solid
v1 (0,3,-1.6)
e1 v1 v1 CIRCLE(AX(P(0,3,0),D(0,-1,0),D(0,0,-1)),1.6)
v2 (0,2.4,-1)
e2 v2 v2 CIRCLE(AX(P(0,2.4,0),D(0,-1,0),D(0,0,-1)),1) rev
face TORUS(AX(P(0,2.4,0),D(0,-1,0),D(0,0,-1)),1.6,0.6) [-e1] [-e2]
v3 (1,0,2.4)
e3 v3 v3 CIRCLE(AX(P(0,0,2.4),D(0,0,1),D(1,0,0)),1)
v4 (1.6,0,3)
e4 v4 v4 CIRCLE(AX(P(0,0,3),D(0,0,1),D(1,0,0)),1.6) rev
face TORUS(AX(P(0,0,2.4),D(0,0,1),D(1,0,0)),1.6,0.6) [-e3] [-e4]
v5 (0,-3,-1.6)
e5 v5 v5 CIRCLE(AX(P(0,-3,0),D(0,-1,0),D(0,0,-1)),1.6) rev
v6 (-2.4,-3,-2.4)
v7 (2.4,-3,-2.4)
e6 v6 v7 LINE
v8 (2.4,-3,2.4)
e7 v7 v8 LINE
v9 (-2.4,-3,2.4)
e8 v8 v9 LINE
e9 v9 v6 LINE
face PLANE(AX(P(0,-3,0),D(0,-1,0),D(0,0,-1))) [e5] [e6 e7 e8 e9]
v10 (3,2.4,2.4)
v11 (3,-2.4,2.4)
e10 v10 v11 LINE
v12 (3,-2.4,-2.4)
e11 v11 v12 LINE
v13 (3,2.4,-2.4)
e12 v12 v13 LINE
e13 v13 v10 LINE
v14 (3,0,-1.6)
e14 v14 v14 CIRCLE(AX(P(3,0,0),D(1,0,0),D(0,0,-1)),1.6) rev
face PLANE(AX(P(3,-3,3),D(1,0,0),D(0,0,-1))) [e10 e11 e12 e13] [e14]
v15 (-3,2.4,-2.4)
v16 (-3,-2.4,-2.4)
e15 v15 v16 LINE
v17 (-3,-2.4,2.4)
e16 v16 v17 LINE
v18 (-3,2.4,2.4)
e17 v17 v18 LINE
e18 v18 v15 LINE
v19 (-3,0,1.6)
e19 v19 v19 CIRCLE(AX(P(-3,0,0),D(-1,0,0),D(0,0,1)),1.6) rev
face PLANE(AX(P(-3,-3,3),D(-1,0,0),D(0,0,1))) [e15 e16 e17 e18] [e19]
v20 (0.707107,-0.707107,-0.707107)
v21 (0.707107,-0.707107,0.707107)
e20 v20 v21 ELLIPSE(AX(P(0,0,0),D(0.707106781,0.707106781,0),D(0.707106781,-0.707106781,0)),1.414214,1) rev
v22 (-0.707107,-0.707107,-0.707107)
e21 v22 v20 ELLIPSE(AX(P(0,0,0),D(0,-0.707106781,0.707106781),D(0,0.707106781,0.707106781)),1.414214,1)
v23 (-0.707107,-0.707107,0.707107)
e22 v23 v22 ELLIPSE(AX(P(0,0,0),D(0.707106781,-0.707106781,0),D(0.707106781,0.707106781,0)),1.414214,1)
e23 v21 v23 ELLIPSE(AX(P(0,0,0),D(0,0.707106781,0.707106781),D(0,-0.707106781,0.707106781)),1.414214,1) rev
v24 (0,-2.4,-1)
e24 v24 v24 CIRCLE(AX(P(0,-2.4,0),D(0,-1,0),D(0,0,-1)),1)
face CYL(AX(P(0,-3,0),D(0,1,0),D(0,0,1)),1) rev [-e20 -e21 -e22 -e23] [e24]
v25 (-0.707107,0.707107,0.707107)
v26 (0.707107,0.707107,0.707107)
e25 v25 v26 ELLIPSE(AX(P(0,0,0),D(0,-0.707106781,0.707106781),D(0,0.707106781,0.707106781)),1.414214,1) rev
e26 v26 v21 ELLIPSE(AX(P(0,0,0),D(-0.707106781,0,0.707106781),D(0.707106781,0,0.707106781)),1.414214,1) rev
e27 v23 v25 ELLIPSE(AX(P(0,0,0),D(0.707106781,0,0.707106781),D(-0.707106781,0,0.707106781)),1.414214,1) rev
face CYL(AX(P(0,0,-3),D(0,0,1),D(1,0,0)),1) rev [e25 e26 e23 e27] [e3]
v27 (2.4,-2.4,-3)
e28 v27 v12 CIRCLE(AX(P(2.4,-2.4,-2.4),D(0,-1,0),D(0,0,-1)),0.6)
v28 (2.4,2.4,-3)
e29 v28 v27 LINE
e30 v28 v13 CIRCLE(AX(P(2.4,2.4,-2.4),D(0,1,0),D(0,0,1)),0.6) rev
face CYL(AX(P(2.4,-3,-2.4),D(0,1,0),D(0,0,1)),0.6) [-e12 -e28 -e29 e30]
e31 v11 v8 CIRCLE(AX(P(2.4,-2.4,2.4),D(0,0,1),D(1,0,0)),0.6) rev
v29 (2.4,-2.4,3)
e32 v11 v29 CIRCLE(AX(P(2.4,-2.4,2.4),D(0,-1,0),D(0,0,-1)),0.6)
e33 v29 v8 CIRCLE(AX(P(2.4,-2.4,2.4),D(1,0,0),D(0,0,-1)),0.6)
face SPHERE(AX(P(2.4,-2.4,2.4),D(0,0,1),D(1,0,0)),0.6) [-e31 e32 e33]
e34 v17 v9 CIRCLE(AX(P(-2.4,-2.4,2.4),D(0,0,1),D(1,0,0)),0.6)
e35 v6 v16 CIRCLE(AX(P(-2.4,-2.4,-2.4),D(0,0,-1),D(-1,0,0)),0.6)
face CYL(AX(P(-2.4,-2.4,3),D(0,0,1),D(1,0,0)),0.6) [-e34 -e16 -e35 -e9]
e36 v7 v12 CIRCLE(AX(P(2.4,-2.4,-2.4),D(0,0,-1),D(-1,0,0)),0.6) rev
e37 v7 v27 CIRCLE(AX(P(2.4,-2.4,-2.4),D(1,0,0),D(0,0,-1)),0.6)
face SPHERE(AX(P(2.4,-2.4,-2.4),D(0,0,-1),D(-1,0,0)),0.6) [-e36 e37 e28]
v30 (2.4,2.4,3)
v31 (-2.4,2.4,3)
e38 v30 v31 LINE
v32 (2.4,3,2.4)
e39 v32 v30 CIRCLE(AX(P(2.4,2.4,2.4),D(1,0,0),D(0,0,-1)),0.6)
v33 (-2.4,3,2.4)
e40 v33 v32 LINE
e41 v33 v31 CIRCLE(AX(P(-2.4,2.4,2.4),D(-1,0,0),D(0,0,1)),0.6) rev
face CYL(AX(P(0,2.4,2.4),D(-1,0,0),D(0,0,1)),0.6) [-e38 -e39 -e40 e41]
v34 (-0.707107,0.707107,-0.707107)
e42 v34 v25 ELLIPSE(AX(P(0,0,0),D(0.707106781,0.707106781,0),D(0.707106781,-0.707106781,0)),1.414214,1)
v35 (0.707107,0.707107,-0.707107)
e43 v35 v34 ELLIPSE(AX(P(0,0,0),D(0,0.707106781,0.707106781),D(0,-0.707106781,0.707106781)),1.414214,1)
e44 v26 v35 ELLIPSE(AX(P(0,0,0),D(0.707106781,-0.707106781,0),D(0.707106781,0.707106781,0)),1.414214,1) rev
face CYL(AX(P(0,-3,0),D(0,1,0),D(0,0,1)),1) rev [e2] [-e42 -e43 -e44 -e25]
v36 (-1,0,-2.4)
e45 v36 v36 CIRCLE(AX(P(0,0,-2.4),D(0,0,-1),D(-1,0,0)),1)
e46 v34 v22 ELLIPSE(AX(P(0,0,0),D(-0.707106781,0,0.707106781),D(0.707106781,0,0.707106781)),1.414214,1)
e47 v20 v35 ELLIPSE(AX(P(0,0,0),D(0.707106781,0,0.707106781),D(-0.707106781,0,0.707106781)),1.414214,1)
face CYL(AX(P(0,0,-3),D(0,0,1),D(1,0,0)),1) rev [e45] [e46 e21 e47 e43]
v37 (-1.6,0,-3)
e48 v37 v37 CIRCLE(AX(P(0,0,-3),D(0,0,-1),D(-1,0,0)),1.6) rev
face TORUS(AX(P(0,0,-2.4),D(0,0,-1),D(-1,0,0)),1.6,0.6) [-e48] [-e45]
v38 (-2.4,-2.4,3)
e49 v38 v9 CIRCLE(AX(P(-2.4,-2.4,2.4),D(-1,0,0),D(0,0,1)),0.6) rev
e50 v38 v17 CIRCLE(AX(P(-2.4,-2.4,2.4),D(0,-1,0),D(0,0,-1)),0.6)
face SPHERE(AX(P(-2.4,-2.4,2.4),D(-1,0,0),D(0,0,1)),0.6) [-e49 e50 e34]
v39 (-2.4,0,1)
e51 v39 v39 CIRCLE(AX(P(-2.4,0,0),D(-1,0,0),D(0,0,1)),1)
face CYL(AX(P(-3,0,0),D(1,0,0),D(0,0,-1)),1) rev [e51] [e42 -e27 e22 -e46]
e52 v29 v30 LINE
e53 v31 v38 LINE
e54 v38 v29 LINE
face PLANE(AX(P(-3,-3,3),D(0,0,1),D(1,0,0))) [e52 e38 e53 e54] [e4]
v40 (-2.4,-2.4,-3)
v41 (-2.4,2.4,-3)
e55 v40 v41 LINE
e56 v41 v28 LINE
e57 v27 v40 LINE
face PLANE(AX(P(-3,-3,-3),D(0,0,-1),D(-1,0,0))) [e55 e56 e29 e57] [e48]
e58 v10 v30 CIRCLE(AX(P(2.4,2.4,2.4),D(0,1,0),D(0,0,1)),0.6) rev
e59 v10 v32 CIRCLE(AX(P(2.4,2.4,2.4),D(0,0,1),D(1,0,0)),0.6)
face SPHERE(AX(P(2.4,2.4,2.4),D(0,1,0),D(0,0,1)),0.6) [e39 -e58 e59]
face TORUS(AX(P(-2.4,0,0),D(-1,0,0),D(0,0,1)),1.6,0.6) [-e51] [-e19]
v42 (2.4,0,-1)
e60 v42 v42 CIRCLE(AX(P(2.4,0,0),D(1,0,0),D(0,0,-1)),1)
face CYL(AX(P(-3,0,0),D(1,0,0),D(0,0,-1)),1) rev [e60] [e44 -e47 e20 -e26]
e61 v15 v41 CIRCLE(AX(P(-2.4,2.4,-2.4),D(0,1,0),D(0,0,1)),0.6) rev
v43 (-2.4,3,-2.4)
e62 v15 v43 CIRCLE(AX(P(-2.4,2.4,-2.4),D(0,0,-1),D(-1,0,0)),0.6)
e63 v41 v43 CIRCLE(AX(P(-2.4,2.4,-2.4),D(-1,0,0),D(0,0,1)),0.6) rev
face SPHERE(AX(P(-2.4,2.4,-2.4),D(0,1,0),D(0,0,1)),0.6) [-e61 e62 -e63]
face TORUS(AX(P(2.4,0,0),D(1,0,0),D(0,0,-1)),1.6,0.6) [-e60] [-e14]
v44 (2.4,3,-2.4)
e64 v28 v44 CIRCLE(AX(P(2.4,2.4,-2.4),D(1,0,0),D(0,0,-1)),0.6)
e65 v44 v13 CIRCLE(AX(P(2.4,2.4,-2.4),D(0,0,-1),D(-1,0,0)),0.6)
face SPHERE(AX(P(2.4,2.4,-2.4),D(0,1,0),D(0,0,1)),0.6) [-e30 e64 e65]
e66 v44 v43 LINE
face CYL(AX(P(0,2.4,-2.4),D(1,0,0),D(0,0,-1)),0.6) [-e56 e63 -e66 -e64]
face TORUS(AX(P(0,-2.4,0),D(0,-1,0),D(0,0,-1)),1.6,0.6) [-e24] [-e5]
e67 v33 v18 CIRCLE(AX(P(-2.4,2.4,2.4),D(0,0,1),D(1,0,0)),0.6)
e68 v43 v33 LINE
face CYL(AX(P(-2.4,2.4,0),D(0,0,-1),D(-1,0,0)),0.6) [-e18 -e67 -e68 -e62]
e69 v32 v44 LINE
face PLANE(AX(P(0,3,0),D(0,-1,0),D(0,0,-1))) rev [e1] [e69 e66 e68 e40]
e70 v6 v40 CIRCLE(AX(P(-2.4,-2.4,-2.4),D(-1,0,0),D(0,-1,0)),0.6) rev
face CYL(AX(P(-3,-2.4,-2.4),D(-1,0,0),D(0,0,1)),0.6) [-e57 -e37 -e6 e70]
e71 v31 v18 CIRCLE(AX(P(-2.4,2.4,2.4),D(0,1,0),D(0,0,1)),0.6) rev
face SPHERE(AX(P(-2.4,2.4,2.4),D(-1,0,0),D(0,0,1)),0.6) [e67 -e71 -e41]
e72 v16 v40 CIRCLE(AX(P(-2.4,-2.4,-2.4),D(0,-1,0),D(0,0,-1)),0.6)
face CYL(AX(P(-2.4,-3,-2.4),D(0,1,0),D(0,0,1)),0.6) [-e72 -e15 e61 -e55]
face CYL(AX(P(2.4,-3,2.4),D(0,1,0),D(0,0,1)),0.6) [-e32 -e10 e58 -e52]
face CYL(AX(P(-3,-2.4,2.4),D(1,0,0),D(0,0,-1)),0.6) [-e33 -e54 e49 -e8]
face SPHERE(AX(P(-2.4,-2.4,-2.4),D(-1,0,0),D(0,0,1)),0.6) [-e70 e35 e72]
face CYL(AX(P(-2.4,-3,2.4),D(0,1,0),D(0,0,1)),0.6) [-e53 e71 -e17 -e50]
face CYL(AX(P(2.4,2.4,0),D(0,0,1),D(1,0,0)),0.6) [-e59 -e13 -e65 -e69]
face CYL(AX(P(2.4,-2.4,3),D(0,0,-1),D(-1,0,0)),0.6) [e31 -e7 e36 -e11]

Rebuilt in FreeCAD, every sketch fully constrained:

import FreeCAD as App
import Part
import Sketcher
Q = App.Units.Quantity


def edges_at(feature, points):
    """Names of the edges that pass closest to the given points."""
    edges = feature.Shape.Edges
    near = lambda p: min(range(len(edges)), key=lambda i: edges[i].distToShape(Part.Vertex(*p))[0])
    return sorted({f"Edge{near(p) + 1}" for p in points})


def add_polygon(sketch, points):
    """Adds a closed chain of lines whose ends are joined by coincident constraints."""
    first, n = sketch.GeometryCount, len(points)
    for a, b in zip(points, points[1:] + points[:1]):
        sketch.addGeometry(Part.LineSegment(App.Vector(*a, 0), App.Vector(*b, 0)), False)
    for i in range(n):
        sketch.addConstraint(Sketcher.Constraint("Coincident", first + i, 2, first + (i + 1) % n, 1))

doc = App.newDocument("Part")
body = doc.addObject("PartDesign::Body", "Body")

# Sketch on XZ plane
sketch1 = doc.addObject("Sketcher::SketchObject", "Sketch")
body.addObject(sketch1)
sketch1.AttachmentSupport = (doc.XZ_Plane, [""])
sketch1.MapMode = "FlatFace"
add_polygon(sketch1, [(-3, -3), (-3, 3), (3, 3), (3, -3)])  # lines 0-3
sketch1.addConstraint([
    Sketcher.Constraint("Vertical", 0),
    Sketcher.Constraint("Horizontal", 1),
    Sketcher.Constraint("Vertical", 2),
    Sketcher.Constraint("Horizontal", 3),
    Sketcher.Constraint("Symmetric", 0, 2, 2, 2, -1, 1),
    Sketcher.Constraint("Equal", 3, 0),
    Sketcher.Constraint("DistanceX", 1, 1, 1, 2, Q("6 mm")),
])
pad1 = doc.addObject("PartDesign::Pad", "Pad")
body.addObject(pad1)
pad1.Profile = sketch1
pad1.Type = "TwoLengths"
pad1.Length = 3
pad1.Length2 = 3
pad1.Reversed = True

# Sketch on XY plane
sketch2 = doc.addObject("Sketcher::SketchObject", "Sketch001")
body.addObject(sketch2)
sketch2.AttachmentSupport = (doc.XY_Plane, [""])
sketch2.MapMode = "FlatFace"
sketch2.AttachmentOffset = App.Placement(App.Vector(0, 0, 3), App.Rotation())
sketch2.addGeometry(Part.Circle(App.Vector(0, 0, 0), App.Vector(0, 0, 1), 1), False)
sketch2.addConstraint([
    Sketcher.Constraint("Coincident", 0, 3, -1, 1),
    Sketcher.Constraint("Diameter", 0, Q("2 mm")),
])
pocket1 = doc.addObject("PartDesign::Pocket", "Pocket")
body.addObject(pocket1)
pocket1.Profile = sketch2
pocket1.Type = "ThroughAll"

# Sketch on YZ plane
sketch3 = doc.addObject("Sketcher::SketchObject", "Sketch002")
body.addObject(sketch3)
sketch3.AttachmentSupport = (doc.YZ_Plane, [""])
sketch3.MapMode = "FlatFace"
sketch3.AttachmentOffset = App.Placement(App.Vector(0, 0, 3), App.Rotation())
sketch3.addGeometry(Part.Circle(App.Vector(0, 0, 0), App.Vector(0, 0, 1), 1), False)
sketch3.addConstraint([
    Sketcher.Constraint("Coincident", 0, 3, -1, 1),
    Sketcher.Constraint("Diameter", 0, Q("2 mm")),
])
pocket2 = doc.addObject("PartDesign::Pocket", "Pocket001")
body.addObject(pocket2)
pocket2.Profile = sketch3
pocket2.Type = "ThroughAll"

# Sketch on XZ plane
sketch4 = doc.addObject("Sketcher::SketchObject", "Sketch003")
body.addObject(sketch4)
sketch4.AttachmentSupport = (doc.XZ_Plane, [""])
sketch4.MapMode = "FlatFace"
sketch4.AttachmentOffset = App.Placement(App.Vector(0, 0, -3), App.Rotation())
sketch4.addGeometry(Part.Circle(App.Vector(0, 0, 0), App.Vector(0, 0, 1), 1), False)
sketch4.addConstraint([
    Sketcher.Constraint("Coincident", 0, 3, -1, 1),
    Sketcher.Constraint("Diameter", 0, Q("2 mm")),
])
pocket3 = doc.addObject("PartDesign::Pocket", "Pocket002")
body.addObject(pocket3)
pocket3.Profile = sketch4
pocket3.Type = "ThroughAll"
pocket3.Reversed = True
doc.recompute()

fillet = doc.addObject("PartDesign::Fillet", "Fillet")
body.addObject(fillet)
fillet.Base = (pocket3, edges_at(pocket3, [
    (3, 3, 0),
    (-3, -3, 0),
    (0, 3, -3),
    (-3, 3, 0),
    (0, 3, 3),
    (0, -3, 3),
    (-1, 0, -3),
    (-1, 0, 3),
    (-3, 0, 1),
    (3, 0, 1),
    (3, -3, 0),
    (-1, -3, 0),
    (-1, 3, 0),
    (3, 0, 3),
    (-3, 0, 3),
    (-3, 0, -3),
    (3, 0, -3),
    (0, -3, -3),
]))
fillet.Radius = 0.6

doc.recompute()
